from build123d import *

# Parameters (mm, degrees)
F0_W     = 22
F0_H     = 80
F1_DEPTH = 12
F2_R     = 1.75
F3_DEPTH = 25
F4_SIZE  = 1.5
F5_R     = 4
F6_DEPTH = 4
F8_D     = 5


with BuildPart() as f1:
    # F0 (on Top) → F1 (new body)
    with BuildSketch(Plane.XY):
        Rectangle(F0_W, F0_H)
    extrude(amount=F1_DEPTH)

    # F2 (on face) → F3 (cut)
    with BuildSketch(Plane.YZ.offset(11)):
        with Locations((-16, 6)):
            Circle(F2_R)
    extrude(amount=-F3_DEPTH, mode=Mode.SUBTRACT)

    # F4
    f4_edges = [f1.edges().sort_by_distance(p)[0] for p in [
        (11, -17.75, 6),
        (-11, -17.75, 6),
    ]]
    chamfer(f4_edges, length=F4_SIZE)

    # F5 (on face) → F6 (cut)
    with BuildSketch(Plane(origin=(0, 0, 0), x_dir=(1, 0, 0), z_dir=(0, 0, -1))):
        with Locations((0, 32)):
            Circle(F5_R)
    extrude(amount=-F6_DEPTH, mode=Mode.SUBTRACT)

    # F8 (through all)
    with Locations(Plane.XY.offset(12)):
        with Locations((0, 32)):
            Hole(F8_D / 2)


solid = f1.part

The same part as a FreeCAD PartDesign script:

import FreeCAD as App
import Part
import Sketcher
Q = App.Units.Quantity


def edges_at(feature, points):
    """Names of the edges that pass closest to the given points."""
    edges = feature.Shape.Edges
    near = lambda p: min(range(len(edges)), key=lambda i: edges[i].distToShape(Part.Vertex(*p))[0])
    return sorted({f"Edge{near(p) + 1}" for p in points})

doc = App.newDocument("Part")
body = doc.addObject("PartDesign::Body", "Body")

# Sketch on XY plane
sketch1 = body.newObject("Sketcher::SketchObject", "Sketch")
sketch1.AttachmentSupport = (doc.getObject("XY_Plane"), [""])
sketch1.MapMode = "FlatFace"
sketch1.addGeometry([
    Part.LineSegment(App.Vector(-11, 40, 0), App.Vector(-11, -40, 0)),
    Part.LineSegment(App.Vector(-11, -40, 0), App.Vector(11, -40, 0)),
    Part.LineSegment(App.Vector(11, -40, 0), App.Vector(11, 40, 0)),
    Part.LineSegment(App.Vector(11, 40, 0), App.Vector(-11, 40, 0)),
], False)
sketch1.addConstraint([
    Sketcher.Constraint("Coincident", 0, 2, 1, 1),
    Sketcher.Constraint("Coincident", 1, 2, 2, 1),
    Sketcher.Constraint("Coincident", 2, 2, 3, 1),
    Sketcher.Constraint("Coincident", 3, 2, 0, 1),
    Sketcher.Constraint("Vertical", 0),
    Sketcher.Constraint("Horizontal", 1),
    Sketcher.Constraint("Vertical", 2),
    Sketcher.Constraint("Horizontal", 3),
    Sketcher.Constraint("Symmetric", 0, 2, 2, 2, -1, 1),
    Sketcher.Constraint("DistanceX", 1, 1, 1, 2, Q("22 mm")),
    Sketcher.Constraint("DistanceY", 0, 2, 0, 1, Q("80 mm")),
])
pad1 = body.newObject("PartDesign::Pad", "Pad")
pad1.Profile = sketch1
pad1.Length = 12

# Sketch on YZ plane
sketch2 = body.newObject("Sketcher::SketchObject", "Sketch001")
sketch2.AttachmentSupport = (doc.getObject("YZ_Plane"), [""])
sketch2.MapMode = "FlatFace"
sketch2.AttachmentOffset = App.Placement(App.Vector(0, 0, 11), App.Rotation())
sketch2.addGeometry(Part.Circle(App.Vector(-16, 6, 0), App.Vector(0, 0, 1), 1.8), False)
sketch2.addConstraint([
    Sketcher.Constraint("Diameter", 0, Q("3.5 mm")),
    Sketcher.Constraint("DistanceX", 0, 3, -1, 1, Q("16 mm")),
    Sketcher.Constraint("DistanceY", -1, 1, 0, 3, Q("6 mm")),
])
pocket1 = body.newObject("PartDesign::Pocket", "Pocket")
pocket1.Profile = sketch2
pocket1.Length = 25
doc.recompute()

chamfer = body.newObject("PartDesign::Chamfer", "Chamfer")
chamfer.Base = (pocket1, edges_at(pocket1, [(11, -17.75, 6), (-11, -17.75, 6)]))
chamfer.Size = 1.5

# Sketch on XY plane
sketch3 = body.newObject("Sketcher::SketchObject", "Sketch002")
sketch3.AttachmentSupport = (doc.getObject("XY_Plane"), [""])
sketch3.MapMode = "FlatFace"
sketch3.addGeometry(Part.Circle(App.Vector(0, -32, 0), App.Vector(0, 0, 1), 4), False)
sketch3.addConstraint([
    Sketcher.Constraint("PointOnObject", 0, 3, -2),
    Sketcher.Constraint("Diameter", 0, Q("8 mm")),
    Sketcher.Constraint("DistanceY", 0, 3, -1, 1, Q("32 mm")),
])
pocket2 = body.newObject("PartDesign::Pocket", "Pocket001")
pocket2.Profile = sketch3
pocket2.Length = 4
pocket2.Reversed = True

# Sketch on XY plane
sketch4 = body.newObject("Sketcher::SketchObject", "Sketch003")
sketch4.AttachmentSupport = (doc.getObject("XY_Plane"), [""])
sketch4.MapMode = "FlatFace"
sketch4.AttachmentOffset = App.Placement(App.Vector(0, 0, 12), App.Rotation())
sketch4.addGeometry(Part.Circle(App.Vector(0, 32, 0), App.Vector(0, 0, 1), 2.5), False)
sketch4.addConstraint([
    Sketcher.Constraint("PointOnObject", 0, 3, -2),
    Sketcher.Constraint("Diameter", 0, Q("5 mm")),
    Sketcher.Constraint("DistanceY", -1, 1, 0, 3, Q("32 mm")),
])
doc.recompute()
hole = body.newObject("PartDesign::Hole", "Hole")
hole.Profile = sketch4
hole.ThreadType = "None"
hole.Diameter = 5
hole.DepthType = "ThroughAll"

doc.recompute()
